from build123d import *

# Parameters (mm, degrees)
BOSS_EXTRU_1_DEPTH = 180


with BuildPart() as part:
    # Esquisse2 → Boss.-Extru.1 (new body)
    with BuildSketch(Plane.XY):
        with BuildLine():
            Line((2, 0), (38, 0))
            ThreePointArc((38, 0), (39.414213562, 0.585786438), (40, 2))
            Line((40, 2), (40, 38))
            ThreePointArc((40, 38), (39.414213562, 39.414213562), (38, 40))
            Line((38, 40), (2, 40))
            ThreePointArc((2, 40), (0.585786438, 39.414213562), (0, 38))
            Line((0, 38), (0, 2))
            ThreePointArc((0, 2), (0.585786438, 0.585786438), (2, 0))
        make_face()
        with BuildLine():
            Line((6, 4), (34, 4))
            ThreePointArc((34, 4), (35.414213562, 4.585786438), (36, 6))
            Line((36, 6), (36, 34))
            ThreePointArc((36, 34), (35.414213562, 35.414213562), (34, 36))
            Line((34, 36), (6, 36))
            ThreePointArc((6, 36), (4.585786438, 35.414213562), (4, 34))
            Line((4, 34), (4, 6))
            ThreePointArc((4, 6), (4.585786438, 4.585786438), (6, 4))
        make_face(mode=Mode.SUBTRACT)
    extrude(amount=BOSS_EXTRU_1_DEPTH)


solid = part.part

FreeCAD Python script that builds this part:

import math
import FreeCAD as App
import Part
import Sketcher
from FreeCAD import Vector

doc = App.newDocument("Part")
body = doc.addObject("PartDesign::Body", "Body")

# Sketch on XY plane
sketch1 = body.newObject("Sketcher::SketchObject", "Sketch")
sketch1.AttachmentSupport = (doc.getObject("XY_Plane"), [""])
sketch1.MapMode = "FlatFace"
sketch1.addGeometry([
    Part.LineSegment(Vector(2, 0, 0), Vector(38, 0, 0)),  # 0
    Part.ArcOfCircle(Part.Circle(Vector(38, 2, 0), Vector(0, 0, 1), 2), math.radians(-90), math.radians(0)),  # 1
    Part.LineSegment(Vector(40, 2, 0), Vector(40, 38, 0)),  # 2
    Part.ArcOfCircle(Part.Circle(Vector(38, 38, 0), Vector(0, 0, 1), 2), math.radians(0), math.radians(90)),  # 3
    Part.LineSegment(Vector(38, 40, 0), Vector(2, 40, 0)),  # 4
    Part.ArcOfCircle(Part.Circle(Vector(2, 38, 0), Vector(0, 0, 1), 2), math.radians(90), math.radians(180)),  # 5
    Part.LineSegment(Vector(0, 38, 0), Vector(0, 2, 0)),  # 6
    Part.ArcOfCircle(Part.Circle(Vector(2, 2, 0), Vector(0, 0, 1), 2), math.radians(-180), math.radians(-90)),  # 7
    Part.LineSegment(Vector(34, 4, 0), Vector(6, 4, 0)),  # 8
    Part.ArcOfCircle(Part.Circle(Vector(6, 6, 0), Vector(0, 0, 1), 2), math.radians(-180), math.radians(-90)),  # 9
    Part.LineSegment(Vector(4, 6, 0), Vector(4, 34, 0)),  # 10
    Part.ArcOfCircle(Part.Circle(Vector(6, 34, 0), Vector(0, 0, 1), 2), math.radians(90), math.radians(180)),  # 11
    Part.LineSegment(Vector(6, 36, 0), Vector(34, 36, 0)),  # 12
    Part.ArcOfCircle(Part.Circle(Vector(34, 34, 0), Vector(0, 0, 1), 2), math.radians(0), math.radians(90)),  # 13
    Part.LineSegment(Vector(36, 34, 0), Vector(36, 6, 0)),  # 14
    Part.ArcOfCircle(Part.Circle(Vector(34, 6, 0), Vector(0, 0, 1), 2), math.radians(-90), math.radians(0)),  # 15
], False)
sketch1.addConstraint([
    Sketcher.Constraint("Tangent", 0, 2, 1, 1),
    Sketcher.Constraint("Tangent", 1, 2, 2, 1),
    Sketcher.Constraint("Tangent", 2, 2, 3, 1),
    Sketcher.Constraint("Tangent", 3, 2, 4, 1),
    Sketcher.Constraint("Tangent", 4, 2, 5, 1),
    Sketcher.Constraint("Tangent", 5, 2, 6, 1),
    Sketcher.Constraint("Tangent", 6, 2, 7, 1),
    Sketcher.Constraint("Tangent", 7, 2, 0, 1),
    Sketcher.Constraint("Tangent", 8, 2, 9, 2),
    Sketcher.Constraint("Tangent", 9, 1, 10, 1),
    Sketcher.Constraint("Tangent", 10, 2, 11, 2),
    Sketcher.Constraint("Tangent", 11, 1, 12, 1),
    Sketcher.Constraint("Tangent", 12, 2, 13, 2),
    Sketcher.Constraint("Tangent", 13, 1, 14, 1),
    Sketcher.Constraint("Tangent", 14, 2, 15, 2),
    Sketcher.Constraint("Tangent", 15, 1, 8, 1),
    Sketcher.Constraint("Horizontal", 0),
    Sketcher.Constraint("Vertical", 2),
    Sketcher.Constraint("Horizontal", 4),
    Sketcher.Constraint("Vertical", 6),
    Sketcher.Constraint("Horizontal", 8),
    Sketcher.Constraint("Vertical", 10),
    Sketcher.Constraint("Horizontal", 12),
    Sketcher.Constraint("Vertical", 14),
    Sketcher.Constraint("Equal", 1, 3),
    Sketcher.Constraint("Equal", 3, 5),
    Sketcher.Constraint("Equal", 5, 7),
    Sketcher.Constraint("Equal", 7, 9),
    Sketcher.Constraint("Equal", 9, 11),
    Sketcher.Constraint("Equal", 11, 13),
    Sketcher.Constraint("Equal", 13, 15),
    Sketcher.Constraint("PointOnObject", 0, 2, -1),
    Sketcher.Constraint("PointOnObject", 5, 2, -2),
    Sketcher.Constraint("Equal", 4, 2),
    Sketcher.Constraint("Equal", 12, 10),
    Sketcher.Constraint("Radius", 1, 2.0),
    Sketcher.Constraint("DistanceX", 0, 1, 0, 2, 36.0),
    Sketcher.Constraint("DistanceX", 8, 2, 8, 1, 28.0),
    Sketcher.Constraint("DistanceX", -1, 1, 9, 3, 6.0),
    Sketcher.Constraint("DistanceY", -1, 1, 9, 3, 6.0),
])
pad1 = body.newObject("PartDesign::Pad", "Pad")
pad1.Profile = sketch1
pad1.Length = 180

doc.recompute()
